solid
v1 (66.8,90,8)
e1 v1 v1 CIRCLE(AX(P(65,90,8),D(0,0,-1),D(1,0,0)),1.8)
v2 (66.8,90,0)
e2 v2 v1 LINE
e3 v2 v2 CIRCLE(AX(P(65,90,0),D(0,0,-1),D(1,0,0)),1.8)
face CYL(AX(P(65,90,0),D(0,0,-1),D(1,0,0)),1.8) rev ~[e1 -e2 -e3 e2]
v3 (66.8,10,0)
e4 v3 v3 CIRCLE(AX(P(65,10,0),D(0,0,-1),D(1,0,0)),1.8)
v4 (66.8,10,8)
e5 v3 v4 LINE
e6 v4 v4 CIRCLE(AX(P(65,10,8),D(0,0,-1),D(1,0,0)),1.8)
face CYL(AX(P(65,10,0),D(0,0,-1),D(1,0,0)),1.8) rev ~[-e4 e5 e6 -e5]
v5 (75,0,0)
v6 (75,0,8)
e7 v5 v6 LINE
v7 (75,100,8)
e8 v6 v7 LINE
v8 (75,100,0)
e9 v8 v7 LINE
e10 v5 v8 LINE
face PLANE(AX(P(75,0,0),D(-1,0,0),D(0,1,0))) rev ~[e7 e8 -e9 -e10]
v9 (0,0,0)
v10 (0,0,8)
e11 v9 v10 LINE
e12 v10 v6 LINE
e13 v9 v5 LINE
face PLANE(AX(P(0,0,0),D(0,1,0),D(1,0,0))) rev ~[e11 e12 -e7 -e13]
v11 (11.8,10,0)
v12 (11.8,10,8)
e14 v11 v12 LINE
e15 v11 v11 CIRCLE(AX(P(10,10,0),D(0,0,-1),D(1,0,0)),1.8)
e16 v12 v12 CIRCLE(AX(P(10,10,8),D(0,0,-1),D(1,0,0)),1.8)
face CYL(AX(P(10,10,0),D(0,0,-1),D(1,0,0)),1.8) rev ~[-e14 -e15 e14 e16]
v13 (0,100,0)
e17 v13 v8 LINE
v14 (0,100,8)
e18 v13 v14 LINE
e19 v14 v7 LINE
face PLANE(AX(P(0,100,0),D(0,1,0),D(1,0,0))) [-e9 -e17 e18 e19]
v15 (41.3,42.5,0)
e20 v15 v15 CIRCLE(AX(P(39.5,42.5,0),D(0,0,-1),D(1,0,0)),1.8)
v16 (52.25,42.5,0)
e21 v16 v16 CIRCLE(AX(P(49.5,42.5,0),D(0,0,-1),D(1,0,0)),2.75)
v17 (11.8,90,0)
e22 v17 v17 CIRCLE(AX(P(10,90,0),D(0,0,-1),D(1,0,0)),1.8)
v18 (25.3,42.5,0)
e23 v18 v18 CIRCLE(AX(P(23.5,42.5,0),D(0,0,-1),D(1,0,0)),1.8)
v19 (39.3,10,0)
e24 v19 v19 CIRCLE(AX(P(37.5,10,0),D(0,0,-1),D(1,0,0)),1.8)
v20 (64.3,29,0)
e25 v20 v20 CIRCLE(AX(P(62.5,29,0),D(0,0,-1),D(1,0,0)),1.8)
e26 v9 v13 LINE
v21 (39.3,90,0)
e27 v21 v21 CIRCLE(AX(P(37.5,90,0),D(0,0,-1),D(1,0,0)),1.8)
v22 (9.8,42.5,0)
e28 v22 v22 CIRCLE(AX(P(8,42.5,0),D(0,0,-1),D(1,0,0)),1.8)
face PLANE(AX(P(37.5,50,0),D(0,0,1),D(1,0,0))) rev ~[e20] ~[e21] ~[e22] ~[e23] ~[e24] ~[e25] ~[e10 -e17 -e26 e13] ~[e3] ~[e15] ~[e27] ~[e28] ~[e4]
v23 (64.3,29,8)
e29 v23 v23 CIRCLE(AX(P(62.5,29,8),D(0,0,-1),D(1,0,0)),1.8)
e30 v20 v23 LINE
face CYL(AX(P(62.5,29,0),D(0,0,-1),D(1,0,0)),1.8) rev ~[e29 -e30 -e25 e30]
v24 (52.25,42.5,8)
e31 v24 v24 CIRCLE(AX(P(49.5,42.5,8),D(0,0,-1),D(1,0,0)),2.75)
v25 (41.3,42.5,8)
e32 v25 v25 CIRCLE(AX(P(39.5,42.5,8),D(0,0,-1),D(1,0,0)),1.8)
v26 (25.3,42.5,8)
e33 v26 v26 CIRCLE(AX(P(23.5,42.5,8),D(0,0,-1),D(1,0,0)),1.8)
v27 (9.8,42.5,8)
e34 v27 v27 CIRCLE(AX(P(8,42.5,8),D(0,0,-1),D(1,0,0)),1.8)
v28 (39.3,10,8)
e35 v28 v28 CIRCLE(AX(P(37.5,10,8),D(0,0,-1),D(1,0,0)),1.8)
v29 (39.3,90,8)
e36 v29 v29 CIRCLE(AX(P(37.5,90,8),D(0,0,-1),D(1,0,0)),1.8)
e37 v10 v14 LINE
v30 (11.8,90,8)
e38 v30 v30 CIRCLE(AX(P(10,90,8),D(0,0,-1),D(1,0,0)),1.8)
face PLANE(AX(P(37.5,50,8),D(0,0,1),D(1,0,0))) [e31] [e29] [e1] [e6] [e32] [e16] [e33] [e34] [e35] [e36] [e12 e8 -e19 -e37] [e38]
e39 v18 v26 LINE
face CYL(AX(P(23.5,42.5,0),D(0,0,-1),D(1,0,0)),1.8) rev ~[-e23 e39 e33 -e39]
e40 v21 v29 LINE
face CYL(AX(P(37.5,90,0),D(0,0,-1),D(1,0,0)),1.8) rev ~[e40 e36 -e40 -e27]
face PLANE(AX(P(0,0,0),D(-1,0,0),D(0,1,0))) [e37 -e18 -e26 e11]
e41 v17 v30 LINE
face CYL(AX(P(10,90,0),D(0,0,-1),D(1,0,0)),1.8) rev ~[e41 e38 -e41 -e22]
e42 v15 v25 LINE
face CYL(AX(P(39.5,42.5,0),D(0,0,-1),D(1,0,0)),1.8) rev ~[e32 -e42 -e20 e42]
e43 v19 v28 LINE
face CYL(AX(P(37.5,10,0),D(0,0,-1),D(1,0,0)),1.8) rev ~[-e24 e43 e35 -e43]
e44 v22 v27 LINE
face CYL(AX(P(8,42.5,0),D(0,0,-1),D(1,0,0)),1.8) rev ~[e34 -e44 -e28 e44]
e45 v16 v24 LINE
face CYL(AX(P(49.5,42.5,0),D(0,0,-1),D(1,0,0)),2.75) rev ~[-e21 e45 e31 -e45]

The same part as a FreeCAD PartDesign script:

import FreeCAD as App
import Part
import Sketcher


def add_polygon(sketch, points):
    """Adds a closed chain of lines whose ends are joined by coincident constraints."""
    first, n = sketch.GeometryCount, len(points)
    for a, b in zip(points, points[1:] + points[:1]):
        sketch.addGeometry(Part.LineSegment(App.Vector(*a, 0), App.Vector(*b, 0)), False)
    for i in range(n):
        sketch.addConstraint(Sketcher.Constraint("Coincident", first + i, 2, first + (i + 1) % n, 1))

doc = App.newDocument("Part")
body = doc.addObject("PartDesign::Body", "Body")

# Sketch on XY plane
sketch1 = doc.addObject("Sketcher::SketchObject", "Sketch")
body.addObject(sketch1)
sketch1.AttachmentSupport = (doc.XY_Plane, [""])
sketch1.MapMode = "FlatFace"
add_polygon(sketch1, [(0, 100), (0, 0), (75, 0), (75, 100)])  # lines 0-3
sketch1.addConstraint([
    Sketcher.Constraint("Vertical", 0),
    Sketcher.Constraint("Horizontal", 1),
    Sketcher.Constraint("Vertical", 2),
    Sketcher.Constraint("Horizontal", 3),
    Sketcher.Constraint("Coincident", 0, 2, -1, 1),
    Sketcher.Constraint("DistanceX", 1, 1, 1, 2, 75.0),
    Sketcher.Constraint("DistanceY", 0, 2, 0, 1, 100.0),
])
pad1 = doc.addObject("PartDesign::Pad", "Pad")
body.addObject(pad1)
pad1.Profile = sketch1
pad1.Length = 8

# Sketch on XY plane
sketch2 = doc.addObject("Sketcher::SketchObject", "Sketch001")
body.addObject(sketch2)
sketch2.AttachmentSupport = (doc.XY_Plane, [""])
sketch2.MapMode = "FlatFace"
sketch2.addGeometry([
    Part.Circle(App.Vector(10, 10, 0), App.Vector(0, 0, 1), 1.8),  # 0
    Part.Circle(App.Vector(37.5, 10, 0), App.Vector(0, 0, 1), 1.8),  # 1
    Part.Circle(App.Vector(65, 10, 0), App.Vector(0, 0, 1), 1.8),  # 2
    Part.Circle(App.Vector(10, 90, 0), App.Vector(0, 0, 1), 1.8),  # 3
    Part.Circle(App.Vector(37.5, 90, 0), App.Vector(0, 0, 1), 1.8),  # 4
    Part.Circle(App.Vector(65, 90, 0), App.Vector(0, 0, 1), 1.8),  # 5
], False)
sketch2.addConstraint([
    Sketcher.Constraint("Equal", 0, 1),
    Sketcher.Constraint("Equal", 1, 2),
    Sketcher.Constraint("Equal", 2, 3),
    Sketcher.Constraint("Equal", 3, 4),
    Sketcher.Constraint("Equal", 4, 5),
    Sketcher.Constraint("Horizontal", 0, 3, 1, 3),
    Sketcher.Constraint("Horizontal", 1, 3, 2, 3),
    Sketcher.Constraint("Horizontal", 3, 3, 4, 3),
    Sketcher.Constraint("Horizontal", 4, 3, 5, 3),
    Sketcher.Constraint("Vertical", 0, 3, 3, 3),
    Sketcher.Constraint("Vertical", 1, 3, 4, 3),
    Sketcher.Constraint("Vertical", 2, 3, 5, 3),
    Sketcher.Constraint("Diameter", 0, 3.6),
    Sketcher.Constraint("DistanceX", -1, 1, 0, 3, 10.0),
    Sketcher.Constraint("DistanceY", -1, 1, 0, 3, 10.0),
    Sketcher.Constraint("DistanceX", -1, 1, 2, 3, 65.0),
    Sketcher.Constraint("DistanceY", -1, 1, 3, 3, 90.0),
    Sketcher.Constraint("DistanceX", -1, 1, 1, 3, 37.5),
])
pocket1 = doc.addObject("PartDesign::Pocket", "Pocket")
body.addObject(pocket1)
pocket1.Profile = sketch2
pocket1.Type = "ThroughAll"
pocket1.Reversed = True

# Sketch on XY plane
sketch3 = doc.addObject("Sketcher::SketchObject", "Sketch002")
body.addObject(sketch3)
sketch3.AttachmentSupport = (doc.XY_Plane, [""])
sketch3.MapMode = "FlatFace"
sketch3.addGeometry([
    Part.Circle(App.Vector(39.5, 42.5, 0), App.Vector(0, 0, 1), 1.8),
    Part.Circle(App.Vector(23.5, 42.5, 0), App.Vector(0, 0, 1), 1.8),
    Part.Circle(App.Vector(8, 42.5, 0), App.Vector(0, 0, 1), 1.8),
    Part.Circle(App.Vector(62.5, 29, 0), App.Vector(0, 0, 1), 1.8),
], False)
sketch3.addConstraint([
    Sketcher.Constraint("Equal", 0, 1),
    Sketcher.Constraint("Equal", 1, 2),
    Sketcher.Constraint("Equal", 2, 3),
    Sketcher.Constraint("Horizontal", 0, 3, 1, 3),
    Sketcher.Constraint("Horizontal", 1, 3, 2, 3),
    Sketcher.Constraint("Diameter", 0, 3.6),
    Sketcher.Constraint("DistanceX", -1, 1, 2, 3, 8.0),
    Sketcher.Constraint("DistanceY", -1, 1, 3, 3, 29.0),
    Sketcher.Constraint("DistanceX", 1, 3, 0, 3, 16.0),
    Sketcher.Constraint("DistanceX", 0, 3, 3, 3, 23.0),
    Sketcher.Constraint("DistanceX", -1, 1, 0, 3, 39.5),
    Sketcher.Constraint("DistanceY", -1, 1, 0, 3, 42.5),
])
pocket2 = doc.addObject("PartDesign::Pocket", "Pocket001")
body.addObject(pocket2)
pocket2.Profile = sketch3
pocket2.Length = 25
pocket2.Reversed = True

# Sketch on XY plane
sketch4 = doc.addObject("Sketcher::SketchObject", "Sketch003")
body.addObject(sketch4)
sketch4.AttachmentSupport = (doc.XY_Plane, [""])
sketch4.MapMode = "FlatFace"
sketch4.addGeometry(Part.Circle(App.Vector(49.5, 42.5, 0), App.Vector(0, 0, 1), 2.8), False)
sketch4.addConstraint([
    Sketcher.Constraint("Diameter", 0, 5.5),
    Sketcher.Constraint("DistanceX", -1, 1, 0, 3, 49.5),
    Sketcher.Constraint("DistanceY", -1, 1, 0, 3, 42.5),
])
pocket3 = doc.addObject("PartDesign::Pocket", "Pocket002")
body.addObject(pocket3)
pocket3.Profile = sketch4
pocket3.Type = "ThroughAll"
pocket3.Reversed = True

doc.recompute()
